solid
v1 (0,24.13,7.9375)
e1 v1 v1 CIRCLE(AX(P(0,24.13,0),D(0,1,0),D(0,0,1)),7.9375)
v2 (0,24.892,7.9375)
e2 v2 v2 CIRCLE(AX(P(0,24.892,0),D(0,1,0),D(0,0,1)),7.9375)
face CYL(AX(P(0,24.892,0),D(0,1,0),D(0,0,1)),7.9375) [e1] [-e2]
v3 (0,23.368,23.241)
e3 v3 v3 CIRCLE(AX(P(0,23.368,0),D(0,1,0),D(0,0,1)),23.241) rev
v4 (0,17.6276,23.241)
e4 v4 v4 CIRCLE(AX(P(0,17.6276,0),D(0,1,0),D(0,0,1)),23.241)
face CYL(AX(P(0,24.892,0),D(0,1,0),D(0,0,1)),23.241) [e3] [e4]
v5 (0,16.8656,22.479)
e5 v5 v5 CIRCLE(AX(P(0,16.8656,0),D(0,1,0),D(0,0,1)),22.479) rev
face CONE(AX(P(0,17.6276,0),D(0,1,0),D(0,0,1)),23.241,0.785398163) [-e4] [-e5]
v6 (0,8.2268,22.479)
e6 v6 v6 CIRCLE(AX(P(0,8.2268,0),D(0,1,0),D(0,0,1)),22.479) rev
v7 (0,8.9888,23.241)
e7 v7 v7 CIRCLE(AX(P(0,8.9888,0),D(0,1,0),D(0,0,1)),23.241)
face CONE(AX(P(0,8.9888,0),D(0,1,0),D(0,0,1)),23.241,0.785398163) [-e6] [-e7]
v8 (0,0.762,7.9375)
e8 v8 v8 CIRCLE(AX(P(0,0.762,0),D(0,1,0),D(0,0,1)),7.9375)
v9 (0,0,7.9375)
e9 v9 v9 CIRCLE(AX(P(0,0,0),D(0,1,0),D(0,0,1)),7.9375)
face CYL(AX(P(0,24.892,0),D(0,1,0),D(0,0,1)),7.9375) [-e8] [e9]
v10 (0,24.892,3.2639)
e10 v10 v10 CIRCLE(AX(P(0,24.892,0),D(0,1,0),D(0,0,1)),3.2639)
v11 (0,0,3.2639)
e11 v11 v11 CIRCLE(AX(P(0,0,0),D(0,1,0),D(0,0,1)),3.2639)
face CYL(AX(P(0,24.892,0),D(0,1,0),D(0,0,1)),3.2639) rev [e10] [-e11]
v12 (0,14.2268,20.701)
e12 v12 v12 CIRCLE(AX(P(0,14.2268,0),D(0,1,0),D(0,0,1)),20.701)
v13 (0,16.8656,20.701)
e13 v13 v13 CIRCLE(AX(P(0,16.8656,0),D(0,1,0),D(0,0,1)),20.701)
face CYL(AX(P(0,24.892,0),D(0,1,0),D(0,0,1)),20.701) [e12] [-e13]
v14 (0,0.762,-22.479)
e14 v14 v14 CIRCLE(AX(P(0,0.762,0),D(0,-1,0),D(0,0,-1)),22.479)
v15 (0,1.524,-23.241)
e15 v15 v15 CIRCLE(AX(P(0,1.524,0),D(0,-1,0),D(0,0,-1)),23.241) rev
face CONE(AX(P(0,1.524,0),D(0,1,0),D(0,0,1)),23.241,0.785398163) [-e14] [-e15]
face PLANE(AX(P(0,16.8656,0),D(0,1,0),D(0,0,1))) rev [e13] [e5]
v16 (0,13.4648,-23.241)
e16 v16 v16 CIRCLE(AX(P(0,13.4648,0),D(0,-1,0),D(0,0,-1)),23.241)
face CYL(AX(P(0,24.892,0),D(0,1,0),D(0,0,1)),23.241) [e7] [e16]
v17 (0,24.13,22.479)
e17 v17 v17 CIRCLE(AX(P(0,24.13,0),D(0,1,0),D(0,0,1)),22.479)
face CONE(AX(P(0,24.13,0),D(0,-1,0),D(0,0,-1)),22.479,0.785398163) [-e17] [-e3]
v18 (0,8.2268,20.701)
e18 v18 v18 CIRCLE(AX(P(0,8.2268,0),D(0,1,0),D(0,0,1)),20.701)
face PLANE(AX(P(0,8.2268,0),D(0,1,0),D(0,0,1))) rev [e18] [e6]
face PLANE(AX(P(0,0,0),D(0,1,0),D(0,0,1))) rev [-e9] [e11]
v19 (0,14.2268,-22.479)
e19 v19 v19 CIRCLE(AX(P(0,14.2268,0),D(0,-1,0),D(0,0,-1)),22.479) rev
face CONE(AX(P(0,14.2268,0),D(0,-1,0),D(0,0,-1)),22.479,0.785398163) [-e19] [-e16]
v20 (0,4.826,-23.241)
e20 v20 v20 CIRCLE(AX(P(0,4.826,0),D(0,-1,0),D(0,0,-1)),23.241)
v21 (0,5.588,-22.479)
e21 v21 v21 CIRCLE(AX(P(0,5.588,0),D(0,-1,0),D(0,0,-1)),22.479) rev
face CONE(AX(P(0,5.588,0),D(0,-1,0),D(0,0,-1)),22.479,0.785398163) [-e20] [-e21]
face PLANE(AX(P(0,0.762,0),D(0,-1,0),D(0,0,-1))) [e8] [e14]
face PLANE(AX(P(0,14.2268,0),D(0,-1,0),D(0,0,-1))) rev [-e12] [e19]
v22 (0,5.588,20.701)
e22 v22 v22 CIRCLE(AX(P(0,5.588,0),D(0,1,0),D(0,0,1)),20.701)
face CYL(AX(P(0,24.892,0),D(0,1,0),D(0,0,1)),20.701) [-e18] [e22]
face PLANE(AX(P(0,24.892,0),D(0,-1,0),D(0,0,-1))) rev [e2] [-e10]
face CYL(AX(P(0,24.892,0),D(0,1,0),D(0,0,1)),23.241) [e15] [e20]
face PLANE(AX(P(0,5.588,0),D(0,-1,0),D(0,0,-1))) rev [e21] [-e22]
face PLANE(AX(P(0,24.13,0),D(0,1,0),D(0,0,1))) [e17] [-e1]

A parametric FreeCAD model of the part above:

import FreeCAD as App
import Part
import Sketcher
Q = App.Units.Quantity


def edges_at(feature, points):
    """Names of the edges that pass closest to the given points."""
    edges = feature.Shape.Edges
    near = lambda p: min(range(len(edges)), key=lambda i: edges[i].distToShape(Part.Vertex(*p))[0])
    return sorted({f"Edge{near(p) + 1}" for p in points})

doc = App.newDocument("Part")
body = doc.addObject("PartDesign::Body", "Body")

# Sketch on XY plane
sketch1 = body.newObject("Sketcher::SketchObject", "Sketch")
sketch1.AttachmentSupport = (doc.getObject("XY_Plane"), [""])
sketch1.MapMode = "FlatFace"
sketch1.addGeometry(Part.LineSegment(App.Vector(7.9, 0, 0), App.Vector(7.9, 0.8, 0)), False)
sketch1.addGeometry(Part.LineSegment(App.Vector(7.9, 0.8, 0), App.Vector(23.2, 0.8, 0)), False)
sketch1.addGeometry(Part.LineSegment(App.Vector(23.2, 0.8, 0), App.Vector(23.2, 5.6, 0)), False)
sketch1.addGeometry(Part.LineSegment(App.Vector(23.2, 5.6, 0), App.Vector(20.7, 5.6, 0)), False)
sketch1.addGeometry(Part.LineSegment(App.Vector(20.7, 5.6, 0), App.Vector(20.7, 8.2, 0)), False)
sketch1.addGeometry(Part.LineSegment(App.Vector(20.7, 8.2, 0), App.Vector(23.2, 8.2, 0)), False)
sketch1.addGeometry(Part.LineSegment(App.Vector(23.2, 8.2, 0), App.Vector(23.2, 14.2, 0)), False)
sketch1.addGeometry(Part.LineSegment(App.Vector(23.2, 14.2, 0), App.Vector(20.7, 14.2, 0)), False)
sketch1.addGeometry(Part.LineSegment(App.Vector(20.7, 14.2, 0), App.Vector(20.7, 16.9, 0)), False)
sketch1.addGeometry(Part.LineSegment(App.Vector(20.7, 16.9, 0), App.Vector(23.2, 16.9, 0)), False)
sketch1.addGeometry(Part.LineSegment(App.Vector(23.2, 16.9, 0), App.Vector(23.2, 24.1, 0)), False)
sketch1.addGeometry(Part.LineSegment(App.Vector(23.2, 24.1, 0), App.Vector(7.9, 24.1, 0)), False)
sketch1.addGeometry(Part.LineSegment(App.Vector(7.9, 24.1, 0), App.Vector(7.9, 24.9, 0)), False)
sketch1.addGeometry(Part.LineSegment(App.Vector(7.9, 24.9, 0), App.Vector(0, 24.9, 0)), False)
sketch1.addGeometry(Part.LineSegment(App.Vector(0, 24.9, 0), App.Vector(0, 0, 0)), False)
sketch1.addGeometry(Part.LineSegment(App.Vector(0, 0, 0), App.Vector(7.9, 0, 0)), False)
sketch1.addConstraint(Sketcher.Constraint("Coincident", 0, 2, 1, 1))
sketch1.addConstraint(Sketcher.Constraint("Coincident", 1, 2, 2, 1))
sketch1.addConstraint(Sketcher.Constraint("Coincident", 2, 2, 3, 1))
sketch1.addConstraint(Sketcher.Constraint("Coincident", 3, 2, 4, 1))
sketch1.addConstraint(Sketcher.Constraint("Coincident", 4, 2, 5, 1))
sketch1.addConstraint(Sketcher.Constraint("Coincident", 5, 2, 6, 1))
sketch1.addConstraint(Sketcher.Constraint("Coincident", 6, 2, 7, 1))
sketch1.addConstraint(Sketcher.Constraint("Coincident", 7, 2, 8, 1))
sketch1.addConstraint(Sketcher.Constraint("Coincident", 8, 2, 9, 1))
sketch1.addConstraint(Sketcher.Constraint("Coincident", 9, 2, 10, 1))
sketch1.addConstraint(Sketcher.Constraint("Coincident", 10, 2, 11, 1))
sketch1.addConstraint(Sketcher.Constraint("Coincident", 11, 2, 12, 1))
sketch1.addConstraint(Sketcher.Constraint("Coincident", 12, 2, 13, 1))
sketch1.addConstraint(Sketcher.Constraint("Coincident", 13, 2, 14, 1))
sketch1.addConstraint(Sketcher.Constraint("Coincident", 14, 2, 15, 1))
sketch1.addConstraint(Sketcher.Constraint("Coincident", 15, 2, 0, 1))
sketch1.addConstraint(Sketcher.Constraint("Vertical", 0))
sketch1.addConstraint(Sketcher.Constraint("Horizontal", 1))
sketch1.addConstraint(Sketcher.Constraint("Vertical", 2))
sketch1.addConstraint(Sketcher.Constraint("Horizontal", 3))
sketch1.addConstraint(Sketcher.Constraint("Vertical", 4))
sketch1.addConstraint(Sketcher.Constraint("Horizontal", 5))
sketch1.addConstraint(Sketcher.Constraint("Vertical", 6))
sketch1.addConstraint(Sketcher.Constraint("Horizontal", 7))
sketch1.addConstraint(Sketcher.Constraint("Vertical", 8))
sketch1.addConstraint(Sketcher.Constraint("Horizontal", 9))
sketch1.addConstraint(Sketcher.Constraint("Vertical", 10))
sketch1.addConstraint(Sketcher.Constraint("Horizontal", 11))
sketch1.addConstraint(Sketcher.Constraint("Vertical", 12))
sketch1.addConstraint(Sketcher.Constraint("Horizontal", 13))
sketch1.addConstraint(Sketcher.Constraint("Vertical", 14))
sketch1.addConstraint(Sketcher.Constraint("Horizontal", 15))
sketch1.addConstraint(Sketcher.Constraint("Coincident", 14, 2, -1, 1))
sketch1.addConstraint(Sketcher.Constraint("Vertical", 2, 2, 5, 2))
sketch1.addConstraint(Sketcher.Constraint("Vertical", 4, 2, 7, 2))
sketch1.addConstraint(Sketcher.Constraint("Vertical", 6, 2, 9, 2))
sketch1.addConstraint(Sketcher.Constraint("Vertical", 0, 2, 11, 2))
sketch1.addConstraint(Sketcher.Constraint("Equal", 4, 8))
sketch1.addConstraint(Sketcher.Constraint("Equal", 0, 12))
sketch1.addConstraint(Sketcher.Constraint("DistanceX", 3, 2, 3, 1, Q("0.1 in")))
sketch1.addConstraint(Sketcher.Constraint("DistanceY", 0, 1, 0, 2, Q("0.03 in")))
sketch1.addConstraint(Sketcher.Constraint("DistanceY", 2, 1, 2, 2, Q("0.19 in")))
sketch1.addConstraint(Sketcher.Constraint("DistanceY", 14, 2, 14, 1, Q("0.98 in")))
sketch1.addConstraint(Sketcher.Constraint("DistanceX", 13, 2, 13, 1, Q("0.3125 in")))
sketch1.addConstraint(Sketcher.Constraint("DistanceY", 10, 1, 10, 2, Q("0.286 in")))
sketch1.addConstraint(Sketcher.Constraint("DistanceX", 1, 1, 1, 2, Q("0.6025 in")))
sketch1.addConstraint(Sketcher.Constraint("DistanceY", 4, 1, 4, 2, Q("2.6388 mm")))
revolution = body.newObject("PartDesign::Revolution", "Revolution")
revolution.Profile = sketch1
revolution.ReferenceAxis = (sketch1, ["V_Axis"])
revolution.Angle = 360

# Sketch on XZ plane
sketch2 = body.newObject("Sketcher::SketchObject", "Sketch001")
sketch2.AttachmentSupport = (doc.getObject("XZ_Plane"), [""])
sketch2.MapMode = "FlatFace"
sketch2.AttachmentOffset = App.Placement(App.Vector(0, 0, -0.98 * 25.4), App.Rotation())
sketch2.addGeometry(Part.Circle(App.Vector(0, 0, 0), App.Vector(0, 0, 1), 3.3), False)
sketch2.addConstraint(Sketcher.Constraint("Coincident", 0, 3, -1, 1))
sketch2.addConstraint(Sketcher.Constraint("Diameter", 0, Q("0.257 in")))
doc.recompute()
hole = body.newObject("PartDesign::Hole", "Hole")
hole.Profile = sketch2
hole.ThreadType = "None"
hole.Diameter = Q("0.257 in")
hole.DepthType = "ThroughAll"
hole.Reversed = True
doc.recompute()

chamfer = body.newObject("PartDesign::Chamfer", "Chamfer")
chamfer.Base = (hole, edges_at(hole, [
    (-23.241, 24.13, 0),
    (-23.241, 16.866, 0),
    (-23.241, 14.227, 0),
    (-23.241, 8.227, 0),
    (-23.241, 5.588, 0),
    (-23.241, 0.762, 0),
]))
chamfer.Size = Q("0.03 in")

doc.recompute()
